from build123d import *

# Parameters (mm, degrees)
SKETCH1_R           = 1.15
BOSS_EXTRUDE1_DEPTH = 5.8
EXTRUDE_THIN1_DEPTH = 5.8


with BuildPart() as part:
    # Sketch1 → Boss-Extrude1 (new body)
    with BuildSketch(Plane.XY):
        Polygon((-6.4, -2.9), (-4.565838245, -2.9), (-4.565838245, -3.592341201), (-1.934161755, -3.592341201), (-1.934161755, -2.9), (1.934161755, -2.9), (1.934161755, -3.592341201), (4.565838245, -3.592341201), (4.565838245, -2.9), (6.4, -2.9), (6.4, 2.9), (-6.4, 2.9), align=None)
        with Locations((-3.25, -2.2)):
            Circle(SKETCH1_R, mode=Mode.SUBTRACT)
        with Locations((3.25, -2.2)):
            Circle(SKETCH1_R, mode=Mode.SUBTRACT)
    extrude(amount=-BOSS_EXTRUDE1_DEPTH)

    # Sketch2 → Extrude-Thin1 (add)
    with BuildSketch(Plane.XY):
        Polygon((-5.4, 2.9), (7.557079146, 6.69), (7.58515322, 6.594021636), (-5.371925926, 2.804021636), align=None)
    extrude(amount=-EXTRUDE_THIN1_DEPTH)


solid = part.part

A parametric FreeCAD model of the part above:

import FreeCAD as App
import Part
import Sketcher


def add_polygon(sketch, points):
    """Adds a closed chain of lines whose ends are joined by coincident constraints."""
    first, n = sketch.GeometryCount, len(points)
    for a, b in zip(points, points[1:] + points[:1]):
        sketch.addGeometry(Part.LineSegment(App.Vector(*a, 0), App.Vector(*b, 0)), False)
    for i in range(n):
        sketch.addConstraint(Sketcher.Constraint("Coincident", first + i, 2, first + (i + 1) % n, 1))

doc = App.newDocument("Part")
params = doc.addObject("Spreadsheet::Sheet", "Params")
for row, (alias, value) in enumerate([
    ("sketch1_diameter", "2.3 mm"),
    ("sketch1_width", "12.8 mm"),
    ("sketch1_height", "5.8 mm"),
    ("pad1_length", "5.8 mm"),
    ("sketch2_length", "13.5 mm"),
    ("sketch2_length2", "0.1 mm"),
    ("pad2_length", "5.8 mm"),
], start=1):
    params.set(f"A{row}", alias)
    params.set(f"B{row}", "=" + value)
    params.setAlias(f"B{row}", alias)

body = doc.addObject("PartDesign::Body", "Body")

# Sketch on XY plane
sketch1 = body.newObject("Sketcher::SketchObject", "Sketch")
sketch1.AttachmentSupport = (doc.getObject("XY_Plane"), [""])
sketch1.MapMode = "FlatFace"
add_polygon(sketch1, [(-6.4, -2.9), (-4.6, -2.9), (-4.6, -3.6), (-1.9, -3.6), (-1.9, -2.9), (1.9, -2.9), (1.9, -3.6), (4.6, -3.6), (4.6, -2.9), (6.4, -2.9), (6.4, 2.9), (-6.4, 2.9)])  # lines 0-11
sketch1.addGeometry(Part.Circle(App.Vector(-3.2, -2.2, 0), App.Vector(0, 0, 1), 1.1), False)  # 12
sketch1.addGeometry(Part.Circle(App.Vector(3.2, -2.2, 0), App.Vector(0, 0, 1), 1.1), False)  # 13
sketch1.addConstraint([
    Sketcher.Constraint("Horizontal", 0),
    Sketcher.Constraint("Vertical", 1),
    Sketcher.Constraint("Horizontal", 2),
    Sketcher.Constraint("Vertical", 3),
    Sketcher.Constraint("Horizontal", 4),
    Sketcher.Constraint("Vertical", 5),
    Sketcher.Constraint("Horizontal", 6),
    Sketcher.Constraint("Vertical", 7),
    Sketcher.Constraint("Horizontal", 8),
    Sketcher.Constraint("Vertical", 9),
    Sketcher.Constraint("Horizontal", 10),
    Sketcher.Constraint("Vertical", 11),
    Sketcher.Constraint("Equal", 12, 13),
    Sketcher.Constraint("Symmetric", 8, 2, 10, 2, -1, 1),
    Sketcher.Constraint("Symmetric", 12, 3, 13, 3, -2),
    Sketcher.Constraint("Symmetric", 2, 2, 5, 2, -2),
    Sketcher.Constraint("Symmetric", 0, 2, 7, 2, -2),
    Sketcher.Constraint("Horizontal", 0, 2, 3, 2),
    Sketcher.Constraint("Diameter", 12, 2.3),
    Sketcher.Constraint("DistanceX", 10, 2, 10, 1, 12.8),
    Sketcher.Constraint("DistanceY", 9, 1, 9, 2, 5.8),
    Sketcher.Constraint("DistanceY", 12, 3, -1, 1, 2.2),
    Sketcher.Constraint("DistanceX", 12, 3, 13, 3, 6.5),
    Sketcher.Constraint("DistanceX", 0, 2, 4, 2, 6.5),
    Sketcher.Constraint("DistanceX", 0, 1, 0, 2, 1.834162),
    Sketcher.Constraint("DistanceY", 1, 2, 1, 1, 0.692341),
])
sketch1.setExpression("Constraints[30]", "Params.sketch1_diameter")
sketch1.setExpression("Constraints[31]", "Params.sketch1_width")
sketch1.setExpression("Constraints[32]", "Params.sketch1_height")
pad1 = body.newObject("PartDesign::Pad", "Pad")
pad1.Profile = sketch1
pad1.setExpression("Length", "Params.pad1_length")
pad1.Reversed = True

# Sketch on XY plane
sketch2 = body.newObject("Sketcher::SketchObject", "Sketch001")
sketch2.AttachmentSupport = (doc.getObject("XY_Plane"), [""])
sketch2.MapMode = "FlatFace"
add_polygon(sketch2, [(7.56, 6.69), (-5.4, 2.9), (-5.37, 2.8), (7.59, 6.59)])  # lines 0-3
sketch2.addConstraint([
    Sketcher.Constraint("Perpendicular", 0, 1),
    Sketcher.Constraint("Perpendicular", 1, 2),
    Sketcher.Constraint("Perpendicular", 2, 3),
    Sketcher.Constraint("Distance", 0, 13.5),
    Sketcher.Constraint("Distance", 1, 0.1),
    Sketcher.Constraint("DistanceX", 0, 2, -1, 1, 5.4),
    Sketcher.Constraint("DistanceY", -1, 1, 0, 2, 2.9),
    Sketcher.Constraint("DistanceY", -1, 1, 3, 2, 6.69),
])
sketch2.setExpression("Constraints[7]", "Params.sketch2_length")
sketch2.setExpression("Constraints[8]", "Params.sketch2_length2")
pad2 = body.newObject("PartDesign::Pad", "Pad001")
pad2.Profile = sketch2
pad2.setExpression("Length", "Params.pad2_length")
pad2.Reversed = True

doc.recompute()
